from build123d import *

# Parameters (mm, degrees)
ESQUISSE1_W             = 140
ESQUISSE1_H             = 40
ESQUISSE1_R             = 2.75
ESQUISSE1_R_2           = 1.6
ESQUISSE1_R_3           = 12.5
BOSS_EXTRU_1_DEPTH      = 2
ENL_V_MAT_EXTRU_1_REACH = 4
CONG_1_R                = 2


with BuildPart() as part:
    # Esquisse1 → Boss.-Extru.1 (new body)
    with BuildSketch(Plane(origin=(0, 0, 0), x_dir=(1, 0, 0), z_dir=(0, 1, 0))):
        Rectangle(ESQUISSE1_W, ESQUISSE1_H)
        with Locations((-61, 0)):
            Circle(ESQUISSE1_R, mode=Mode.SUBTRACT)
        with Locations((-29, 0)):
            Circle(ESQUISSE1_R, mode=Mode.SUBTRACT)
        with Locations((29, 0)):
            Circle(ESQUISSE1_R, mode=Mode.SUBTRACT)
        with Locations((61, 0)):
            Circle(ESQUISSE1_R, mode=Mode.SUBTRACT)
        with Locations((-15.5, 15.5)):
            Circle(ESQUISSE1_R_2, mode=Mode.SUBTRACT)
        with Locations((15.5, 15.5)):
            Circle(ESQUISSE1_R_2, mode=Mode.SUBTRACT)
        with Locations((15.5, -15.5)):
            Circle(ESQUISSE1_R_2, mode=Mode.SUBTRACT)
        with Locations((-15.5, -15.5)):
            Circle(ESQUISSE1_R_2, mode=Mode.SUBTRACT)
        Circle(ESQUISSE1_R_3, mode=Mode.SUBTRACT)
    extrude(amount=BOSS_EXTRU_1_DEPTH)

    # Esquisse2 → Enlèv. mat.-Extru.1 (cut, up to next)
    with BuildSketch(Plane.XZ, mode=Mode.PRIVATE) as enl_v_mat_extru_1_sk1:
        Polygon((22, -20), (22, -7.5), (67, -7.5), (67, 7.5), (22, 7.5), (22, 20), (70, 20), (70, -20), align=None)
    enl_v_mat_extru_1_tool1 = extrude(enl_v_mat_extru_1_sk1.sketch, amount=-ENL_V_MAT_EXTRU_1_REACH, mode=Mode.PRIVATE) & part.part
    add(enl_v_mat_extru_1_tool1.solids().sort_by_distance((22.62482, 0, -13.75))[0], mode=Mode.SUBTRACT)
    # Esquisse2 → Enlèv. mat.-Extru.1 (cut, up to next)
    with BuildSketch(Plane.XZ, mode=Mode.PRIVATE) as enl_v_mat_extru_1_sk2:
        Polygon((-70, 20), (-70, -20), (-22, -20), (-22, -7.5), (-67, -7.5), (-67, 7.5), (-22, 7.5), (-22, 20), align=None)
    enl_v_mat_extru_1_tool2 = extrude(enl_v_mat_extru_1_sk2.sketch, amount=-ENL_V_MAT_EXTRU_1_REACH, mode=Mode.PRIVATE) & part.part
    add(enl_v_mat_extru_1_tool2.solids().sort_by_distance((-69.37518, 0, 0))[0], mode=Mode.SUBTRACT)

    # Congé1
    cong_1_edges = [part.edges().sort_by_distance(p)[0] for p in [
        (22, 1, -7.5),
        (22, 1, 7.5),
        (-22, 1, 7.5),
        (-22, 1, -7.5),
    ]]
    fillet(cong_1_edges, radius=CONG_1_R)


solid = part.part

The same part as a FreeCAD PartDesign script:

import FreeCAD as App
import Part
import Sketcher


def edges_at(feature, points):
    """Names of the edges that pass closest to the given points."""
    edges = feature.Shape.Edges
    near = lambda p: min(range(len(edges)), key=lambda i: edges[i].distToShape(Part.Vertex(*p))[0])
    return sorted({f"Edge{near(p) + 1}" for p in points})

doc = App.newDocument("Part")
body = doc.addObject("PartDesign::Body", "Body")

sketch1 = body.newObject("Sketcher::SketchObject", "Sketch")
sketch1.AttachmentSupport = (doc.getObject("XZ_Plane"), [""])
sketch1.MapMode = "FlatFace"
sketch1.addGeometry([
    Part.LineSegment(App.Vector(-70, -20, 0), App.Vector(-70, 20, 0)),
    Part.LineSegment(App.Vector(-70, 20, 0), App.Vector(70, 20, 0)),
    Part.LineSegment(App.Vector(70, 20, 0), App.Vector(70, -20, 0)),
    Part.LineSegment(App.Vector(70, -20, 0), App.Vector(-70, -20, 0)),
    Part.Circle(App.Vector(-15.5, 15.5, 0), App.Vector(0, 0, 1), 1.6),
    Part.Circle(App.Vector(15.5, 15.5, 0), App.Vector(0, 0, 1), 1.6),
    Part.Circle(App.Vector(-61, 0, 0), App.Vector(0, 0, 1), 2.8),
    Part.Circle(App.Vector(-29, 0, 0), App.Vector(0, 0, 1), 2.8),
    Part.Circle(App.Vector(-15.5, -15.5, 0), App.Vector(0, 0, 1), 1.6),
    Part.Circle(App.Vector(0, 0, 0), App.Vector(0, 0, 1), 12.5),
    Part.Circle(App.Vector(29, 0, 0), App.Vector(0, 0, 1), 2.8),
    Part.Circle(App.Vector(61, 0, 0), App.Vector(0, 0, 1), 2.8),
    Part.Circle(App.Vector(15.5, -15.5, 0), App.Vector(0, 0, 1), 1.6),
], False)
sketch1.addConstraint([
    Sketcher.Constraint("Coincident", 0, 2, 1, 1),
    Sketcher.Constraint("Coincident", 1, 2, 2, 1),
    Sketcher.Constraint("Coincident", 2, 2, 3, 1),
    Sketcher.Constraint("Coincident", 3, 2, 0, 1),
    Sketcher.Constraint("Vertical", 0),
    Sketcher.Constraint("Horizontal", 1),
    Sketcher.Constraint("Vertical", 2),
    Sketcher.Constraint("Horizontal", 3),
    Sketcher.Constraint("Coincident", 9, 3, -1, 1),
    Sketcher.Constraint("Equal", 4, 5),
    Sketcher.Constraint("Equal", 6, 7),
    Sketcher.Constraint("Equal", 5, 8),
    Sketcher.Constraint("Equal", 7, 10),
    Sketcher.Constraint("Equal", 10, 11),
    Sketcher.Constraint("Equal", 8, 12),
    Sketcher.Constraint("Symmetric", 5, 3, 8, 3, -1, 1),
    Sketcher.Constraint("Symmetric", 7, 3, 10, 3, -1, 1),
    Sketcher.Constraint("Symmetric", 6, 3, 11, 3, -1, 1),
    Sketcher.Constraint("Symmetric", 4, 3, 12, 3, -1, 1),
    Sketcher.Constraint("Symmetric", 0, 2, 2, 2, -1, 1),
    Sketcher.Constraint("Symmetric", 4, 3, 5, 3, -2),
    Sketcher.Constraint("PointOnObject", 6, 3, -1),
    Sketcher.Constraint("PointOnObject", 7, 3, -1),
    Sketcher.Constraint("Diameter", 9, 25.0),
    Sketcher.Constraint("Diameter", 4, 3.2),
    Sketcher.Constraint("Diameter", 6, 5.5),
    Sketcher.Constraint("DistanceX", 1, 1, 1, 2, 140.0),
    Sketcher.Constraint("DistanceY", 0, 1, 0, 2, 40.0),
    Sketcher.Constraint("DistanceX", 6, 3, -1, 1, 61.0),
    Sketcher.Constraint("DistanceX", 7, 3, -1, 1, 29.0),
    Sketcher.Constraint("DistanceX", 4, 3, 5, 3, 31.0),
    Sketcher.Constraint("DistanceY", 8, 3, 4, 3, 31.0),
])
pad1 = body.newObject("PartDesign::Pad", "Pad")
pad1.Profile = sketch1
pad1.Length = 2
pad1.Reversed = True

sketch2 = body.newObject("Sketcher::SketchObject", "Sketch001")
sketch2.AttachmentSupport = (doc.getObject("XZ_Plane"), [""])
sketch2.MapMode = "FlatFace"
sketch2.addGeometry([
    Part.LineSegment(App.Vector(22, -8, 0), App.Vector(22, -20, 0)),
    Part.LineSegment(App.Vector(22, -20, 0), App.Vector(70, -20, 0)),
    Part.LineSegment(App.Vector(70, -20, 0), App.Vector(70, 20, 0)),
    Part.LineSegment(App.Vector(70, 20, 0), App.Vector(22, 20, 0)),
    Part.LineSegment(App.Vector(22, 20, 0), App.Vector(22, 8, 0)),
    Part.LineSegment(App.Vector(22, 8, 0), App.Vector(67, 8, 0)),
    Part.LineSegment(App.Vector(67, 8, 0), App.Vector(67, -8, 0)),
    Part.LineSegment(App.Vector(67, -8, 0), App.Vector(22, -8, 0)),
], False)
sketch2.addConstraint([
    Sketcher.Constraint("Coincident", 0, 2, 1, 1),
    Sketcher.Constraint("Coincident", 1, 2, 2, 1),
    Sketcher.Constraint("Coincident", 2, 2, 3, 1),
    Sketcher.Constraint("Coincident", 3, 2, 4, 1),
    Sketcher.Constraint("Coincident", 4, 2, 5, 1),
    Sketcher.Constraint("Coincident", 5, 2, 6, 1),
    Sketcher.Constraint("Coincident", 6, 2, 7, 1),
    Sketcher.Constraint("Coincident", 7, 2, 0, 1),
    Sketcher.Constraint("Vertical", 0),
    Sketcher.Constraint("Horizontal", 1),
    Sketcher.Constraint("Vertical", 2),
    Sketcher.Constraint("Horizontal", 3),
    Sketcher.Constraint("Vertical", 4),
    Sketcher.Constraint("Horizontal", 5),
    Sketcher.Constraint("Vertical", 6),
    Sketcher.Constraint("Horizontal", 7),
    Sketcher.Constraint("Symmetric", 0, 2, 3, 2, -1),
    Sketcher.Constraint("Equal", 0, 4),
    Sketcher.Constraint("DistanceX", 1, 1, 1, 2, 48.0),
    Sketcher.Constraint("DistanceX", 5, 1, 5, 2, 45.0),
    Sketcher.Constraint("DistanceY", 2, 1, 2, 2, 40.0),
    Sketcher.Constraint("DistanceY", 6, 2, 6, 1, 15.0),
    Sketcher.Constraint("DistanceX", -1, 1, 0, 2, 22.0),
])
pocket1 = body.newObject("PartDesign::Pocket", "Pocket")
pocket1.Profile = sketch2
pocket1.Type = "UpToFirst"

sketch3 = body.newObject("Sketcher::SketchObject", "Sketch002")
sketch3.AttachmentSupport = (doc.getObject("XZ_Plane"), [""])
sketch3.MapMode = "FlatFace"
sketch3.addGeometry([
    Part.LineSegment(App.Vector(-70, 20, 0), App.Vector(-70, -20, 0)),
    Part.LineSegment(App.Vector(-70, -20, 0), App.Vector(-22, -20, 0)),
    Part.LineSegment(App.Vector(-22, -20, 0), App.Vector(-22, -8, 0)),
    Part.LineSegment(App.Vector(-22, -8, 0), App.Vector(-67, -8, 0)),
    Part.LineSegment(App.Vector(-67, -8, 0), App.Vector(-67, 8, 0)),
    Part.LineSegment(App.Vector(-67, 8, 0), App.Vector(-22, 8, 0)),
    Part.LineSegment(App.Vector(-22, 8, 0), App.Vector(-22, 20, 0)),
    Part.LineSegment(App.Vector(-22, 20, 0), App.Vector(-70, 20, 0)),
], False)
sketch3.addConstraint([
    Sketcher.Constraint("Coincident", 0, 2, 1, 1),
    Sketcher.Constraint("Coincident", 1, 2, 2, 1),
    Sketcher.Constraint("Coincident", 2, 2, 3, 1),
    Sketcher.Constraint("Coincident", 3, 2, 4, 1),
    Sketcher.Constraint("Coincident", 4, 2, 5, 1),
    Sketcher.Constraint("Coincident", 5, 2, 6, 1),
    Sketcher.Constraint("Coincident", 6, 2, 7, 1),
    Sketcher.Constraint("Coincident", 7, 2, 0, 1),
    Sketcher.Constraint("Vertical", 0),
    Sketcher.Constraint("Horizontal", 1),
    Sketcher.Constraint("Vertical", 2),
    Sketcher.Constraint("Horizontal", 3),
    Sketcher.Constraint("Vertical", 4),
    Sketcher.Constraint("Horizontal", 5),
    Sketcher.Constraint("Vertical", 6),
    Sketcher.Constraint("Horizontal", 7),
    Sketcher.Constraint("Symmetric", 2, 2, 5, 2, -1),
    Sketcher.Constraint("Equal", 2, 6),
    Sketcher.Constraint("DistanceX", 1, 1, 1, 2, 48.0),
    Sketcher.Constraint("DistanceX", 3, 2, 3, 1, 45.0),
    Sketcher.Constraint("DistanceY", 0, 2, 0, 1, 40.0),
    Sketcher.Constraint("DistanceY", 4, 1, 4, 2, 15.0),
    Sketcher.Constraint("DistanceX", 0, 2, -1, 1, 70.0),
])
pocket2 = body.newObject("PartDesign::Pocket", "Pocket001")
pocket2.Profile = sketch3
pocket2.Type = "UpToFirst"
doc.recompute()

fillet = body.newObject("PartDesign::Fillet", "Fillet")
fillet.Base = (pocket2, edges_at(pocket2, [
    (22, 1, -7.5),
    (22, 1, 7.5),
    (-22, 1, 7.5),
    (-22, 1, -7.5),
]))
fillet.Radius = 2

doc.recompute()
